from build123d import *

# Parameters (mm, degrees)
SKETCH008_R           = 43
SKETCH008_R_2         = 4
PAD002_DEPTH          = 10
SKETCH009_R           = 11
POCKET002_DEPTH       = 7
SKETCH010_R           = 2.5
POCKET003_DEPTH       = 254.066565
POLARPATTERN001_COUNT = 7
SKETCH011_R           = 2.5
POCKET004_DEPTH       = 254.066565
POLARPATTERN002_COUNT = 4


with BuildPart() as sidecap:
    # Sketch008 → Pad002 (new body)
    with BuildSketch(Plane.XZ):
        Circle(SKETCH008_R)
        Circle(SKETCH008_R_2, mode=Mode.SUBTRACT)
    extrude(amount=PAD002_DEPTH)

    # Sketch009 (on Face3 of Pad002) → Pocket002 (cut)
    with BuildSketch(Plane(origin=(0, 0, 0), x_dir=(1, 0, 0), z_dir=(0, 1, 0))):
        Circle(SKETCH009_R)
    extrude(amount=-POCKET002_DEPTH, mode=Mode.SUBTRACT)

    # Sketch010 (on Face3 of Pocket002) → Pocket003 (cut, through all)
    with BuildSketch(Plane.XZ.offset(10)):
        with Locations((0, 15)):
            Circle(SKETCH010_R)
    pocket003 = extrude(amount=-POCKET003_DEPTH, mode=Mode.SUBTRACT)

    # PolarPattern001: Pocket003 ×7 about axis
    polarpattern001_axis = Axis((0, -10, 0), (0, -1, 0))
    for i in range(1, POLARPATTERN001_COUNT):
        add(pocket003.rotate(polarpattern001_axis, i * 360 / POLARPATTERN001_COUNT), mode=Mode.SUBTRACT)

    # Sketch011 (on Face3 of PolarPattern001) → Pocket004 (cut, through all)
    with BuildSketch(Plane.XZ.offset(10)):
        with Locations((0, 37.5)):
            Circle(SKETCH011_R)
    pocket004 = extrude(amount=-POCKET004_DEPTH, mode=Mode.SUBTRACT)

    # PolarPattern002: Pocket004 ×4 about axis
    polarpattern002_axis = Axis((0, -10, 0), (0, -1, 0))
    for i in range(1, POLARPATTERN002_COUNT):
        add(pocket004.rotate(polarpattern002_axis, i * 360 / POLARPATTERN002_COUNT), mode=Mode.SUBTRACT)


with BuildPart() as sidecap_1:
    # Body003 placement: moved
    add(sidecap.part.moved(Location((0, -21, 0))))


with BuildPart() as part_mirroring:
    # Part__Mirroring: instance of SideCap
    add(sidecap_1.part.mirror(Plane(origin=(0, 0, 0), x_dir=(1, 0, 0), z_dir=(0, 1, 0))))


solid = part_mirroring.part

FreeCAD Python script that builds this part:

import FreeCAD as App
import Part
import Sketcher
from FreeCAD import Vector
Q = App.Units.Quantity

doc = App.newDocument("Part")
params = doc.addObject("Spreadsheet::Sheet", "Params")
for row, (alias, value) in enumerate([
    ("sketch1_diameter", "86 mm"),
    ("sketch1_diameter2", "8 mm"),
    ("pad1_length", "10 mm"),
    ("sketch2_diameter", "22 mm"),
    ("pocket1_length", "7 mm"),
    ("sketch3_diameter", "5 mm"),
    ("sketch4_diameter", "5 mm"),
], start=1):
    params.set(f"A{row}", alias)
    params.set(f"B{row}", "=" + value)
    params.setAlias(f"B{row}", alias)

body = doc.addObject("PartDesign::Body", "Body")

# Sketch on XZ plane
sketch1 = body.newObject("Sketcher::SketchObject", "Sketch")
sketch1.AttachmentSupport = (doc.getObject("XZ_Plane"), [""])
sketch1.MapMode = "FlatFace"
sketch1.addGeometry([
    Part.Circle(Vector(0, 0, 0), Vector(0, 0, 1), 43),
    Part.Circle(Vector(0, 0, 0), Vector(0, 0, 1), 4),
], False)
sketch1.addConstraint([
    Sketcher.Constraint("Coincident", 0, 3, -1, 1),
    Sketcher.Constraint("Coincident", 1, 3, -1, 1),
    Sketcher.Constraint("Diameter", 0, Q("86 mm")),
    Sketcher.Constraint("Diameter", 1, Q("8 mm")),
])
sketch1.setExpression("Constraints[2]", "Params.sketch1_diameter")
sketch1.setExpression("Constraints[3]", "Params.sketch1_diameter2")
pad1 = body.newObject("PartDesign::Pad", "Pad")
pad1.Profile = sketch1
pad1.setExpression("Length", "Params.pad1_length")

# Sketch on XZ plane
sketch2 = body.newObject("Sketcher::SketchObject", "Sketch001")
sketch2.AttachmentSupport = (doc.getObject("XZ_Plane"), [""])
sketch2.MapMode = "FlatFace"
sketch2.addGeometry(Part.Circle(Vector(0, 0, 0), Vector(0, 0, 1), 11), False)
sketch2.addConstraint([
    Sketcher.Constraint("Coincident", 0, 3, -1, 1),
    Sketcher.Constraint("Diameter", 0, Q("22 mm")),
])
sketch2.setExpression("Constraints[1]", "Params.sketch2_diameter")
pocket1 = body.newObject("PartDesign::Pocket", "Pocket")
pocket1.Profile = sketch2
pocket1.setExpression("Length", "Params.pocket1_length")
pocket1.Reversed = True

# Sketch on XZ plane
sketch3 = body.newObject("Sketcher::SketchObject", "Sketch002")
sketch3.AttachmentSupport = (doc.getObject("XZ_Plane"), [""])
sketch3.MapMode = "FlatFace"
sketch3.AttachmentOffset = App.Placement(Vector(0, 0, 10), App.Rotation())
sketch3.addGeometry(Part.Circle(Vector(0, 15, 0), Vector(0, 0, 1), 2.5), False)
sketch3.addConstraint([
    Sketcher.Constraint("PointOnObject", 0, 3, -2),
    Sketcher.Constraint("Diameter", 0, Q("5 mm")),
    Sketcher.Constraint("DistanceY", -1, 1, 0, 3, Q("15 mm")),
])
sketch3.setExpression("Constraints[1]", "Params.sketch3_diameter")
pocket2 = body.newObject("PartDesign::Pocket", "Pocket001")
pocket2.Profile = sketch3
pocket2.Type = "ThroughAll"
doc.recompute()

polarpattern = body.newObject("PartDesign::PolarPattern", "PolarPattern")
polarpattern.Originals = [pocket2]
polarpattern.Axis = (doc.getObject("Y_Axis"), [""])
polarpattern.Angle = 360
polarpattern.Occurrences = 7
body.Tip = polarpattern

# Sketch on XZ plane
sketch4 = body.newObject("Sketcher::SketchObject", "Sketch003")
sketch4.AttachmentSupport = (doc.getObject("XZ_Plane"), [""])
sketch4.MapMode = "FlatFace"
sketch4.AttachmentOffset = App.Placement(Vector(0, 0, 10), App.Rotation())
sketch4.addGeometry(Part.Circle(Vector(0, 37.5, 0), Vector(0, 0, 1), 2.5), False)
sketch4.addConstraint([
    Sketcher.Constraint("PointOnObject", 0, 3, -2),
    Sketcher.Constraint("Diameter", 0, Q("5 mm")),
    Sketcher.Constraint("DistanceY", -1, 1, 0, 3, Q("37.5 mm")),
])
sketch4.setExpression("Constraints[1]", "Params.sketch4_diameter")
pocket3 = body.newObject("PartDesign::Pocket", "Pocket002")
pocket3.Profile = sketch4
pocket3.Type = "ThroughAll"
doc.recompute()

polarpattern2 = body.newObject("PartDesign::PolarPattern", "PolarPattern001")
polarpattern2.Originals = [pocket3]
polarpattern2.Axis = (doc.getObject("Y_Axis"), [""])
polarpattern2.Angle = 360
polarpattern2.Occurrences = 4
body.Tip = polarpattern2
body2 = doc.addObject("PartDesign::Body", "Body001")
doc.recompute()

body.Placement = App.Placement(Vector(0, -21, 0), App.Rotation(Vector(0, 0, 1), 0))
boolean = body2.newObject("PartDesign::Boolean", "Boolean")
boolean.Type = "Fuse"
boolean.addObjects([body])
body3 = doc.addObject("PartDesign::Body", "Body002")
doc.recompute()

mirroring = doc.addObject("Part::Mirroring", "Mirroring")
mirroring.Source = body2
mirroring.Base = Vector(0, 0, 0)
mirroring.Normal = Vector(0, 1, 0)
body3.BaseFeature = mirroring
doc.recompute()
body2.Visibility = False
mirroring.Visibility = False

doc.recompute()
